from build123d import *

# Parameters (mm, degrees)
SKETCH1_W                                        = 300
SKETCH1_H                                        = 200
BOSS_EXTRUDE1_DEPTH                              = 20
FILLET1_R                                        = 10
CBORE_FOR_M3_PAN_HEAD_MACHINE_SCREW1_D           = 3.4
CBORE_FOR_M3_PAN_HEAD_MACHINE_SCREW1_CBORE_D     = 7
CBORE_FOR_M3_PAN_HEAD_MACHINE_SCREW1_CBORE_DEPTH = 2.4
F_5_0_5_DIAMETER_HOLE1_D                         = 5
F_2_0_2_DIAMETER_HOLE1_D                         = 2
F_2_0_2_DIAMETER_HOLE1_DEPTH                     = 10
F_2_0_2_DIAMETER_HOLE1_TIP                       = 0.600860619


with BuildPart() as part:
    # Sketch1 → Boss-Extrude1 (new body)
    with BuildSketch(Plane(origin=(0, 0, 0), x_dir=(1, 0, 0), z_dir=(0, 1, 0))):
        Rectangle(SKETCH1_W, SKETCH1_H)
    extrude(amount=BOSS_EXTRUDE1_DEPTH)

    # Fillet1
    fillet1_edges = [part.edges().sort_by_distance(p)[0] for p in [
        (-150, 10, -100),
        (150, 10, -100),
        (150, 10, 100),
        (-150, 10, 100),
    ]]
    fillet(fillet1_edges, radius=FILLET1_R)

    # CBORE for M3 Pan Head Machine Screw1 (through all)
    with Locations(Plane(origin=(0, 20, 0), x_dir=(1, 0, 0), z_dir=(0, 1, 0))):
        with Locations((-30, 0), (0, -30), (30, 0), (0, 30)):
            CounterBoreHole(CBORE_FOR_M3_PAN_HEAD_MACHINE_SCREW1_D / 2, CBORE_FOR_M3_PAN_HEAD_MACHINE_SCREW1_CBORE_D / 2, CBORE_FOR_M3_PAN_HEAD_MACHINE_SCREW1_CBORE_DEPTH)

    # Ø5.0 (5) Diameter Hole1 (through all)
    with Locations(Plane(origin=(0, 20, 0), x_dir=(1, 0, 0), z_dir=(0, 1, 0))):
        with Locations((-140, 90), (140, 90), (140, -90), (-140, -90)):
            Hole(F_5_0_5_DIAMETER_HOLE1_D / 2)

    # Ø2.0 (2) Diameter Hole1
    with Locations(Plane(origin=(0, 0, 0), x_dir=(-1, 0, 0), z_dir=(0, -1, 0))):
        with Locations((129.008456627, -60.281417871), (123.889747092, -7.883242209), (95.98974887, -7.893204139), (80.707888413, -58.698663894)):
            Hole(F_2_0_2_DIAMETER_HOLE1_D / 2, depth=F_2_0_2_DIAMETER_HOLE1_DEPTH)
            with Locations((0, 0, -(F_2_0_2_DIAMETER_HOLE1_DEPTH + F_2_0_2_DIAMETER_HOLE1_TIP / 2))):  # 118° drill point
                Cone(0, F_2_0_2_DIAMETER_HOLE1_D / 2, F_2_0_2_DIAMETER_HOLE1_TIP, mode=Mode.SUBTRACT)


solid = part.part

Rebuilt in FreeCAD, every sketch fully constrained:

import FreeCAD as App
import Part
import Sketcher
Q = App.Units.Quantity


def edges_at(feature, points):
    """Names of the edges that pass closest to the given points."""
    edges = feature.Shape.Edges
    near = lambda p: min(range(len(edges)), key=lambda i: edges[i].distToShape(Part.Vertex(*p))[0])
    return sorted({f"Edge{near(p) + 1}" for p in points})

doc = App.newDocument("Part")
body = doc.addObject("PartDesign::Body", "Body")

sketch1 = doc.addObject("Sketcher::SketchObject", "Sketch")
body.addObject(sketch1)
sketch1.AttachmentSupport = (doc.XZ_Plane, [""])
sketch1.MapMode = "FlatFace"
sketch1.addGeometry([
    Part.LineSegment(App.Vector(-150, -100, 0), App.Vector(-150, 100, 0)),
    Part.LineSegment(App.Vector(-150, 100, 0), App.Vector(150, 100, 0)),
    Part.LineSegment(App.Vector(150, 100, 0), App.Vector(150, -100, 0)),
    Part.LineSegment(App.Vector(150, -100, 0), App.Vector(-150, -100, 0)),
], False)
sketch1.addConstraint([
    Sketcher.Constraint("Coincident", 0, 2, 1, 1),
    Sketcher.Constraint("Coincident", 1, 2, 2, 1),
    Sketcher.Constraint("Coincident", 2, 2, 3, 1),
    Sketcher.Constraint("Coincident", 3, 2, 0, 1),
    Sketcher.Constraint("Vertical", 0),
    Sketcher.Constraint("Horizontal", 1),
    Sketcher.Constraint("Vertical", 2),
    Sketcher.Constraint("Horizontal", 3),
    Sketcher.Constraint("Symmetric", 0, 2, 2, 2, -1, 1),
    Sketcher.Constraint("DistanceX", 1, 1, 1, 2, Q("300 mm")),
    Sketcher.Constraint("DistanceY", 0, 1, 0, 2, Q("200 mm")),
])
pad1 = doc.addObject("PartDesign::Pad", "Pad")
body.addObject(pad1)
pad1.Profile = sketch1
pad1.Length = 20
pad1.Reversed = True
doc.recompute()

fillet = doc.addObject("PartDesign::Fillet", "Fillet")
body.addObject(fillet)
fillet.Base = (pad1, edges_at(pad1, [
    (-150, 10, -100),
    (150, 10, -100),
    (150, 10, 100),
    (-150, 10, 100),
]))
fillet.Radius = 10

sketch2 = doc.addObject("Sketcher::SketchObject", "Sketch001")
body.addObject(sketch2)
sketch2.AttachmentSupport = (doc.XZ_Plane, [""])
sketch2.MapMode = "FlatFace"
sketch2.AttachmentOffset = App.Placement(App.Vector(0, 0, -20), App.Rotation())
sketch2.addGeometry([
    Part.Circle(App.Vector(-30, 0, 0), App.Vector(0, 0, 1), 1.7),
    Part.Circle(App.Vector(0, 30, 0), App.Vector(0, 0, 1), 1.7),
    Part.Circle(App.Vector(30, 0, 0), App.Vector(0, 0, 1), 1.7),
    Part.Circle(App.Vector(0, -30, 0), App.Vector(0, 0, 1), 1.7),
], False)
sketch2.addConstraint([
    Sketcher.Constraint("Equal", 0, 1),
    Sketcher.Constraint("Equal", 1, 2),
    Sketcher.Constraint("Equal", 2, 3),
    Sketcher.Constraint("Symmetric", 0, 3, 2, 3, -1, 1),
    Sketcher.Constraint("Symmetric", 1, 3, 3, 3, -1, 1),
    Sketcher.Constraint("PointOnObject", 0, 3, -1),
    Sketcher.Constraint("PointOnObject", 1, 3, -2),
    Sketcher.Constraint("Diameter", 0, Q("3.4 mm")),
    Sketcher.Constraint("DistanceX", 0, 3, -1, 1, Q("30 mm")),
    Sketcher.Constraint("DistanceY", -1, 1, 1, 3, Q("30 mm")),
])
doc.recompute()
hole = doc.addObject("PartDesign::Hole", "Hole")
body.addObject(hole)
hole.Profile = sketch2
hole.ThreadType = "None"
hole.Diameter = 3.4
hole.DepthType = "ThroughAll"
hole.HoleCutType = "Counterbore"
hole.HoleCutDiameter = 7
hole.HoleCutDepth = 2.4
hole.Reversed = True

sketch3 = doc.addObject("Sketcher::SketchObject", "Sketch002")
body.addObject(sketch3)
sketch3.AttachmentSupport = (doc.XZ_Plane, [""])
sketch3.MapMode = "FlatFace"
sketch3.AttachmentOffset = App.Placement(App.Vector(0, 0, -20), App.Rotation())
sketch3.addGeometry([
    Part.Circle(App.Vector(-140, -90, 0), App.Vector(0, 0, 1), 2.5),
    Part.Circle(App.Vector(140, -90, 0), App.Vector(0, 0, 1), 2.5),
    Part.Circle(App.Vector(140, 90, 0), App.Vector(0, 0, 1), 2.5),
    Part.Circle(App.Vector(-140, 90, 0), App.Vector(0, 0, 1), 2.5),
], False)
sketch3.addConstraint([
    Sketcher.Constraint("Equal", 0, 1),
    Sketcher.Constraint("Equal", 1, 2),
    Sketcher.Constraint("Equal", 2, 3),
    Sketcher.Constraint("Symmetric", 0, 3, 2, 3, -1, 1),
    Sketcher.Constraint("Symmetric", 1, 3, 3, 3, -1, 1),
    Sketcher.Constraint("Symmetric", 0, 3, 1, 3, -2),
    Sketcher.Constraint("Diameter", 0, Q("5 mm")),
    Sketcher.Constraint("DistanceX", 0, 3, -1, 1, Q("140 mm")),
    Sketcher.Constraint("DistanceY", 0, 3, -1, 1, Q("90 mm")),
])
doc.recompute()
hole2 = doc.addObject("PartDesign::Hole", "Hole001")
body.addObject(hole2)
hole2.Profile = sketch3
hole2.ThreadType = "None"
hole2.Diameter = 5
hole2.DepthType = "ThroughAll"
hole2.Reversed = True

sketch4 = doc.addObject("Sketcher::SketchObject", "Sketch003")
body.addObject(sketch4)
sketch4.AttachmentSupport = (doc.XZ_Plane, [""])
sketch4.MapMode = "FlatFace"
sketch4.addGeometry([
    Part.Circle(App.Vector(-129, 60.3, 0), App.Vector(0, 0, 1), 1),
    Part.Circle(App.Vector(-123.9, 7.9, 0), App.Vector(0, 0, 1), 1),
    Part.Circle(App.Vector(-96, 7.9, 0), App.Vector(0, 0, 1), 1),
    Part.Circle(App.Vector(-80.7, 58.7, 0), App.Vector(0, 0, 1), 1),
], False)
sketch4.addConstraint([
    Sketcher.Constraint("Equal", 0, 1),
    Sketcher.Constraint("Equal", 1, 2),
    Sketcher.Constraint("Equal", 2, 3),
    Sketcher.Constraint("Diameter", 0, Q("2 mm")),
    Sketcher.Constraint("DistanceX", 1, 3, 2, 3, Q("27.899998 mm")),
    Sketcher.Constraint("DistanceX", 2, 3, -1, 1, Q("95.989749 mm")),
    Sketcher.Constraint("DistanceX", 3, 3, -1, 1, Q("80.707888 mm")),
    Sketcher.Constraint("DistanceX", 0, 3, 1, 3, Q("5.11871 mm")),
    Sketcher.Constraint("DistanceY", 1, 3, 2, 3, Q("0.009962 mm")),
    Sketcher.Constraint("DistanceY", 2, 3, 3, 3, Q("50.80546 mm")),
    Sketcher.Constraint("DistanceY", -1, 1, 0, 3, Q("60.281418 mm")),
    Sketcher.Constraint("DistanceY", -1, 1, 1, 3, Q("7.883242 mm")),
])
doc.recompute()
hole3 = doc.addObject("PartDesign::Hole", "Hole002")
body.addObject(hole3)
hole3.Profile = sketch4
hole3.ThreadType = "None"
hole3.Diameter = 2
hole3.DepthType = "Dimension"
hole3.Depth = 10
hole3.DrillPoint = "Angled"
hole3.DrillPointAngle = 118

doc.recompute()
